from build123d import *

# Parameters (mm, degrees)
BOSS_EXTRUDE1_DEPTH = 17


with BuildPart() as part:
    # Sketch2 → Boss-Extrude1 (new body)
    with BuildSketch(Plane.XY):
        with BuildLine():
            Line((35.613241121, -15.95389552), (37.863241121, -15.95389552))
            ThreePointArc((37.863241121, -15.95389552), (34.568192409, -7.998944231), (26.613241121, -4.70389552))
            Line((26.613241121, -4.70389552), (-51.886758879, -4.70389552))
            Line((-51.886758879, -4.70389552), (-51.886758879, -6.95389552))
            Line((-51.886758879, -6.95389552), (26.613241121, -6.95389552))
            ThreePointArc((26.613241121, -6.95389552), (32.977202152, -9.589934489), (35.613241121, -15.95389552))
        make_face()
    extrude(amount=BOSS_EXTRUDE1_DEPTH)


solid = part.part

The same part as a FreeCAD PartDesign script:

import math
import FreeCAD as App
import Part
import Sketcher

V = App.Vector
Q = App.Units.Quantity

doc = App.newDocument("Part")
body = doc.addObject("PartDesign::Body", "Body")

sketch1 = body.newObject("Sketcher::SketchObject", "Sketch")
sketch1.AttachmentSupport = (doc.getObject("XY_Plane"), [""])
sketch1.MapMode = "FlatFace"
sketch1.addGeometry([
    Part.LineSegment(V(35.6, -16, 0), V(37.9, -16, 0)),
    Part.ArcOfCircle(Part.Circle(V(26.6, -16, 0), V(0, 0, 1), 11.2), math.radians(0), math.radians(90)),
    Part.LineSegment(V(26.6, -4.7, 0), V(-51.9, -4.7, 0)),
    Part.LineSegment(V(-51.9, -4.7, 0), V(-51.9, -7, 0)),
    Part.LineSegment(V(-51.9, -7, 0), V(26.6, -7, 0)),
    Part.ArcOfCircle(Part.Circle(V(26.6, -16, 0), V(0, 0, 1), 9), math.radians(0), math.radians(90)),
], False)
sketch1.addConstraint([
    Sketcher.Constraint("Coincident", 0, 2, 1, 1),
    Sketcher.Constraint("Tangent", 1, 2, 2, 1),
    Sketcher.Constraint("Coincident", 2, 2, 3, 1),
    Sketcher.Constraint("Coincident", 3, 2, 4, 1),
    Sketcher.Constraint("Tangent", 4, 2, 5, 2),
    Sketcher.Constraint("Coincident", 5, 1, 0, 1),
    Sketcher.Constraint("Horizontal", 0),
    Sketcher.Constraint("Horizontal", 2),
    Sketcher.Constraint("Vertical", 3),
    Sketcher.Constraint("Horizontal", 4),
    Sketcher.Constraint("Coincident", 5, 3, 1, 3),
    Sketcher.Constraint("Horizontal", 5, 3, 0, 2),
    Sketcher.Constraint("Radius", 5, Q("9 mm")),
    Sketcher.Constraint("Radius", 1, Q("11.25 mm")),
    Sketcher.Constraint("DistanceX", 2, 2, 2, 1, Q("78.5 mm")),
    Sketcher.Constraint("DistanceX", -1, 1, 1, 3, Q("26.613241 mm")),
    Sketcher.Constraint("DistanceY", 1, 3, -1, 1, Q("15.953896 mm")),
])
pad1 = body.newObject("PartDesign::Pad", "Pad")
pad1.Profile = sketch1
pad1.Length = 17

doc.recompute()
